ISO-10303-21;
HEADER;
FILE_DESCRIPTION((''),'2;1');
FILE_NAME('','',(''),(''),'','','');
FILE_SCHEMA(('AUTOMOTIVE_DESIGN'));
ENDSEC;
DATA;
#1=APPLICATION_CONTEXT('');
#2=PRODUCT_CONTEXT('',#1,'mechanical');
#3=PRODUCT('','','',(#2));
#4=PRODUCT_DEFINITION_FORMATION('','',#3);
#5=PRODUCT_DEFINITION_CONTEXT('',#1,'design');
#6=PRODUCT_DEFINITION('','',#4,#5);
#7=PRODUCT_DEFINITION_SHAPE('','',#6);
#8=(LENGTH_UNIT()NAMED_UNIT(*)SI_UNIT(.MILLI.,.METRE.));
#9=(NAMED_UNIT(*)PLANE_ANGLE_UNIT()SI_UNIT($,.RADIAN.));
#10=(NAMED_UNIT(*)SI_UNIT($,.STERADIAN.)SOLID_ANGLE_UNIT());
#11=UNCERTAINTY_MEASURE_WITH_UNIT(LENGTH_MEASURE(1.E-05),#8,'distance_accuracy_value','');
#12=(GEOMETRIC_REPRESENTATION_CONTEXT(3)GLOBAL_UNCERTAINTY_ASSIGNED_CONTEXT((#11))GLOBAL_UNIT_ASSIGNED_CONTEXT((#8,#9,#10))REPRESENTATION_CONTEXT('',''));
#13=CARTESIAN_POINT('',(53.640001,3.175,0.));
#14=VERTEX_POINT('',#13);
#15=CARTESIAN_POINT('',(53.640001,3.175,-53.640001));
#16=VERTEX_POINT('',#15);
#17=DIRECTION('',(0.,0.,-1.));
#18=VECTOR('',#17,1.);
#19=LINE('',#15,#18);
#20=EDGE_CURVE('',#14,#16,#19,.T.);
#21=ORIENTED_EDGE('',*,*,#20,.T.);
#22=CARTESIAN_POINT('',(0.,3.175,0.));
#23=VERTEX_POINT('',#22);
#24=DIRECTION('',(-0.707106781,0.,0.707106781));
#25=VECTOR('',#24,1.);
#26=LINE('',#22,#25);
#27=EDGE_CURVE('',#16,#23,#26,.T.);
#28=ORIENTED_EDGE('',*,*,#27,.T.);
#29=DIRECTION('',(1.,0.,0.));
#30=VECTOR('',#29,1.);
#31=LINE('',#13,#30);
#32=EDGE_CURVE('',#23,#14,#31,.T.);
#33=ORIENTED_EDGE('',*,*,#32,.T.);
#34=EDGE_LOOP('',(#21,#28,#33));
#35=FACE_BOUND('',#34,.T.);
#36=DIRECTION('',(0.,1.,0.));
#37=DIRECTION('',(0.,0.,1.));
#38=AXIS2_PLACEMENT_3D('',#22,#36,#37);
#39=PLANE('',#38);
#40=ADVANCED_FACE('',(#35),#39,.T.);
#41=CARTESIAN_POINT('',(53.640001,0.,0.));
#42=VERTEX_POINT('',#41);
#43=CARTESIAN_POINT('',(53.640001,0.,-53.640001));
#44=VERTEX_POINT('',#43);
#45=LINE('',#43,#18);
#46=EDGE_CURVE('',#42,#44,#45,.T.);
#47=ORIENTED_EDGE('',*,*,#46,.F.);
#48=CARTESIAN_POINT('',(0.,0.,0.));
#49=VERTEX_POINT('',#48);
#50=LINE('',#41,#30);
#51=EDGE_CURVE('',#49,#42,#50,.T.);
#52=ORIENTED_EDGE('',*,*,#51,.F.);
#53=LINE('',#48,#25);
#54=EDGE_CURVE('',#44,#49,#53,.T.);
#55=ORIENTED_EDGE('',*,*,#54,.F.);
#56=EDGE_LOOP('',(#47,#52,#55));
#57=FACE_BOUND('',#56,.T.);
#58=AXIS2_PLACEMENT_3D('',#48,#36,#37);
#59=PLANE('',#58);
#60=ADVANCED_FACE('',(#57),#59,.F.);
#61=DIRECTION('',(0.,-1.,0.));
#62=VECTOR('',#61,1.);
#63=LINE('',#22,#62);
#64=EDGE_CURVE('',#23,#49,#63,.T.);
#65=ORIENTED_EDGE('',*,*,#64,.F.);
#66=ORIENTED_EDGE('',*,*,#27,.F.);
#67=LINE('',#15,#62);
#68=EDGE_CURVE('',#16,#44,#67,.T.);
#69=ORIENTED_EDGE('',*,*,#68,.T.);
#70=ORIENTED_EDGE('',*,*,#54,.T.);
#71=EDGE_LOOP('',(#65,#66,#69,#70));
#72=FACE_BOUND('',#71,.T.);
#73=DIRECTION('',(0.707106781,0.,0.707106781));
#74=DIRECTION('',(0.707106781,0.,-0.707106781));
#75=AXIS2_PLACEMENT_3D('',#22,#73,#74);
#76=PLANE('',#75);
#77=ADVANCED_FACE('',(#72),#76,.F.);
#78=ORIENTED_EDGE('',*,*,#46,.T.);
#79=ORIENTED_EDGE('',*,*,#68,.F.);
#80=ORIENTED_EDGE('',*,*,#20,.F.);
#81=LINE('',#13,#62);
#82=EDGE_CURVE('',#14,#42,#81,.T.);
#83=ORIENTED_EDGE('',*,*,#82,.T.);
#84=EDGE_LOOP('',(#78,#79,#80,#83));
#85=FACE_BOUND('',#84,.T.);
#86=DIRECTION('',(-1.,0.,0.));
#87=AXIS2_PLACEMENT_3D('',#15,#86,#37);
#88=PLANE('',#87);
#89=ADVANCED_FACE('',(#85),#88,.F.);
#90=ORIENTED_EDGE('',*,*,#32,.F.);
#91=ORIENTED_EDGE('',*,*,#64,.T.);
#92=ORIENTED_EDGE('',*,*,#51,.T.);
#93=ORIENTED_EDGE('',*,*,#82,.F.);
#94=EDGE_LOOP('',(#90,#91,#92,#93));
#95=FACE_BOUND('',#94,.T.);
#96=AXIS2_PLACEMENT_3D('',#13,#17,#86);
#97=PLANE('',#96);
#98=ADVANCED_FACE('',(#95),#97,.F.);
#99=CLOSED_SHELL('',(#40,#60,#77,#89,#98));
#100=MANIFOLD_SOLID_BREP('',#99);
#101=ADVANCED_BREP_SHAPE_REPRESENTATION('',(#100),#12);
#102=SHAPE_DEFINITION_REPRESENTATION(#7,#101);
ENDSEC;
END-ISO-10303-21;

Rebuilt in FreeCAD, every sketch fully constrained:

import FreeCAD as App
import Part
import Sketcher

V = App.Vector
Q = App.Units.Quantity

doc = App.newDocument("Part")
body = doc.addObject("PartDesign::Body", "Body")

sketch1 = body.newObject("Sketcher::SketchObject", "Sketch")
sketch1.AttachmentSupport = (doc.getObject("XZ_Plane"), [""])
sketch1.MapMode = "FlatFace"
sketch1.addGeometry([
    Part.LineSegment(V(53.640001, -53.640001, 0), V(0, 0, 0)),
    Part.LineSegment(V(0, 0, 0), V(53.640001, 0, 0)),
    Part.LineSegment(V(53.640001, 0, 0), V(53.640001, -53.640001, 0)),
], False)
sketch1.addConstraint([
    Sketcher.Constraint("Coincident", 0, 2, 1, 1),
    Sketcher.Constraint("Coincident", 1, 2, 2, 1),
    Sketcher.Constraint("Coincident", 2, 2, 0, 1),
    Sketcher.Constraint("Horizontal", 1),
    Sketcher.Constraint("Vertical", 2),
    Sketcher.Constraint("Coincident", 0, 2, -1, 1),
    Sketcher.Constraint("Equal", 1, 2),
    Sketcher.Constraint("DistanceX", 1, 1, 1, 2, 53.640001),
])
pad1 = body.newObject("PartDesign::Pad", "Pad")
pad1.Profile = sketch1
pad1.Length = Q("0.125 in")
pad1.Reversed = True

doc.recompute()
